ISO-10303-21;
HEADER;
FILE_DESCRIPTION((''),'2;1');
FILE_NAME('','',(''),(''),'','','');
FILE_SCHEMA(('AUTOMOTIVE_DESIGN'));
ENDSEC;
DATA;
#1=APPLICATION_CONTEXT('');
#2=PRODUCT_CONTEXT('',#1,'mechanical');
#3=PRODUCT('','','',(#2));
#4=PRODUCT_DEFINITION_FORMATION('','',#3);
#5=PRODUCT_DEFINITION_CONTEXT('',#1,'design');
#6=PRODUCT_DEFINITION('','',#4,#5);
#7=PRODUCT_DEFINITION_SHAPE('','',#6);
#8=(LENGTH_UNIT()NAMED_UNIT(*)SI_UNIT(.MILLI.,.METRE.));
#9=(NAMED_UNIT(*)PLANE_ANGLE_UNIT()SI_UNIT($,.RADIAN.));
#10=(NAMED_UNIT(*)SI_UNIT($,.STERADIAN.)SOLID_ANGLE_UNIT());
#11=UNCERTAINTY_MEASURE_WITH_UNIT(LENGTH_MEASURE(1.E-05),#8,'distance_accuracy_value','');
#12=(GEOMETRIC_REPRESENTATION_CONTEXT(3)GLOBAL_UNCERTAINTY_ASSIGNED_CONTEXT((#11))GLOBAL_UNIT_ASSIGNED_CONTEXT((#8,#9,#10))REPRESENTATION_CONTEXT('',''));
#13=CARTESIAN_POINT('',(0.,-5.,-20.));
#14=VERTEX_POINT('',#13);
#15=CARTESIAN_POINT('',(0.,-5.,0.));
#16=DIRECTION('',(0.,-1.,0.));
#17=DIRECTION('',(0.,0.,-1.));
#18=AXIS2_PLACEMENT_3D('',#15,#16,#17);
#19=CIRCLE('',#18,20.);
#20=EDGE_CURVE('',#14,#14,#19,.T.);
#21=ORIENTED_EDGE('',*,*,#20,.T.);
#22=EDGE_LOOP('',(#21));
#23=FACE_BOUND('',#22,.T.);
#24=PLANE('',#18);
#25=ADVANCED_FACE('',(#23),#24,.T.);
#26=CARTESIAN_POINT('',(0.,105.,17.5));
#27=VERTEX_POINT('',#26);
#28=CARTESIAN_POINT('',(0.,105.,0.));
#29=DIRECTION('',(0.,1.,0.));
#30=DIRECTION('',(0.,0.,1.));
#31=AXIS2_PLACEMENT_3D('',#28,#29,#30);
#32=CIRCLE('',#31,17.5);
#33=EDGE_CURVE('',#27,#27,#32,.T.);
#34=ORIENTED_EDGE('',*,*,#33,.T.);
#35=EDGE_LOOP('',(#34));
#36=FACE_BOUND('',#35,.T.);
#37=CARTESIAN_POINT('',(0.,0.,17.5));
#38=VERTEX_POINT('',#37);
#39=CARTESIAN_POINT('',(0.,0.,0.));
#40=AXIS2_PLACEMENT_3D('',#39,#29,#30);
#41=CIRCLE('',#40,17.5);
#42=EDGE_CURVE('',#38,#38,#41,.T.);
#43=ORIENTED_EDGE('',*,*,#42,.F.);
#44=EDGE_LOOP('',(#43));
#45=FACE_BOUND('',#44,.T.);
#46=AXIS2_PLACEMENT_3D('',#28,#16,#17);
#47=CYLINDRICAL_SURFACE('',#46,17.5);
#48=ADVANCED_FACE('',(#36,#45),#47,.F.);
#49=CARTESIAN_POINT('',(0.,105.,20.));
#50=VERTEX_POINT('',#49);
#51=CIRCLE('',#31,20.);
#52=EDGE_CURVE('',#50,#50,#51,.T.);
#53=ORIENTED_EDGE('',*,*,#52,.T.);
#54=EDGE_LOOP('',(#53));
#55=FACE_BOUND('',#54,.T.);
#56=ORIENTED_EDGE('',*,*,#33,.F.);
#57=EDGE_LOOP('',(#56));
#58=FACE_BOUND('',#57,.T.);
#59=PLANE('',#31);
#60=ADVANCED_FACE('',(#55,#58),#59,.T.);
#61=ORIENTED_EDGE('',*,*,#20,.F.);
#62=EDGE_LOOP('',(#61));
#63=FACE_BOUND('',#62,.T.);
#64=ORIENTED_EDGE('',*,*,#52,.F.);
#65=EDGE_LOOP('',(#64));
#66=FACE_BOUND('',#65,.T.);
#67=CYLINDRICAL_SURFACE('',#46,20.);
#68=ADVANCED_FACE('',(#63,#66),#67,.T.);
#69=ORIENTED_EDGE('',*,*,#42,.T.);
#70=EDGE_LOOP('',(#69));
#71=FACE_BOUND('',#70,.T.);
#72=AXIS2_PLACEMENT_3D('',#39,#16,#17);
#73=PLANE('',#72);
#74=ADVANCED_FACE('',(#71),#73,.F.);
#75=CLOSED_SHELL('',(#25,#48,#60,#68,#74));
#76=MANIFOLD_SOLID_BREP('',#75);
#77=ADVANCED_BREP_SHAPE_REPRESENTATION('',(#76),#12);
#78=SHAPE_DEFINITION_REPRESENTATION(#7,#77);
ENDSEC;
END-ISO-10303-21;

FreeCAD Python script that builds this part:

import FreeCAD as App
import Part
import Sketcher
from FreeCAD import Vector

doc = App.newDocument("Part")
body = doc.addObject("PartDesign::Body", "Body")

# Sketch on XZ plane
sketch1 = body.newObject("Sketcher::SketchObject", "Sketch")
sketch1.AttachmentSupport = (doc.getObject("XZ_Plane"), [""])
sketch1.MapMode = "FlatFace"
sketch1.addGeometry([
    Part.Circle(Vector(0, 0, 0), Vector(0, 0, 1), 20),
    Part.Circle(Vector(0, 0, 0), Vector(0, 0, 1), 17.5),
], False)
sketch1.addConstraint([
    Sketcher.Constraint("Coincident", 0, 3, -1, 1),
    Sketcher.Constraint("Coincident", 1, 3, -1, 1),
    Sketcher.Constraint("Diameter", 0, 40.0),
    Sketcher.Constraint("Diameter", 1, 35.0),
])
pad1 = body.newObject("PartDesign::Pad", "Pad")
pad1.Profile = sketch1
pad1.Length = 105
pad1.Reversed = True

# Sketch on XZ plane
sketch2 = body.newObject("Sketcher::SketchObject", "Sketch001")
sketch2.AttachmentSupport = (doc.getObject("XZ_Plane"), [""])
sketch2.MapMode = "FlatFace"
sketch2.AttachmentOffset = App.Placement(Vector(0, 0, 5), App.Rotation())
sketch2.addGeometry(Part.Circle(Vector(0, 0, 0), Vector(0, 0, 1), 20), False)
sketch2.addConstraint([
    Sketcher.Constraint("Coincident", 0, 3, -1, 1),
    Sketcher.Constraint("Diameter", 0, 40.0),
])
pad2 = body.newObject("PartDesign::Pad", "Pad001")
pad2.Profile = sketch2
pad2.Length = 5
pad2.Reversed = True

doc.recompute()
